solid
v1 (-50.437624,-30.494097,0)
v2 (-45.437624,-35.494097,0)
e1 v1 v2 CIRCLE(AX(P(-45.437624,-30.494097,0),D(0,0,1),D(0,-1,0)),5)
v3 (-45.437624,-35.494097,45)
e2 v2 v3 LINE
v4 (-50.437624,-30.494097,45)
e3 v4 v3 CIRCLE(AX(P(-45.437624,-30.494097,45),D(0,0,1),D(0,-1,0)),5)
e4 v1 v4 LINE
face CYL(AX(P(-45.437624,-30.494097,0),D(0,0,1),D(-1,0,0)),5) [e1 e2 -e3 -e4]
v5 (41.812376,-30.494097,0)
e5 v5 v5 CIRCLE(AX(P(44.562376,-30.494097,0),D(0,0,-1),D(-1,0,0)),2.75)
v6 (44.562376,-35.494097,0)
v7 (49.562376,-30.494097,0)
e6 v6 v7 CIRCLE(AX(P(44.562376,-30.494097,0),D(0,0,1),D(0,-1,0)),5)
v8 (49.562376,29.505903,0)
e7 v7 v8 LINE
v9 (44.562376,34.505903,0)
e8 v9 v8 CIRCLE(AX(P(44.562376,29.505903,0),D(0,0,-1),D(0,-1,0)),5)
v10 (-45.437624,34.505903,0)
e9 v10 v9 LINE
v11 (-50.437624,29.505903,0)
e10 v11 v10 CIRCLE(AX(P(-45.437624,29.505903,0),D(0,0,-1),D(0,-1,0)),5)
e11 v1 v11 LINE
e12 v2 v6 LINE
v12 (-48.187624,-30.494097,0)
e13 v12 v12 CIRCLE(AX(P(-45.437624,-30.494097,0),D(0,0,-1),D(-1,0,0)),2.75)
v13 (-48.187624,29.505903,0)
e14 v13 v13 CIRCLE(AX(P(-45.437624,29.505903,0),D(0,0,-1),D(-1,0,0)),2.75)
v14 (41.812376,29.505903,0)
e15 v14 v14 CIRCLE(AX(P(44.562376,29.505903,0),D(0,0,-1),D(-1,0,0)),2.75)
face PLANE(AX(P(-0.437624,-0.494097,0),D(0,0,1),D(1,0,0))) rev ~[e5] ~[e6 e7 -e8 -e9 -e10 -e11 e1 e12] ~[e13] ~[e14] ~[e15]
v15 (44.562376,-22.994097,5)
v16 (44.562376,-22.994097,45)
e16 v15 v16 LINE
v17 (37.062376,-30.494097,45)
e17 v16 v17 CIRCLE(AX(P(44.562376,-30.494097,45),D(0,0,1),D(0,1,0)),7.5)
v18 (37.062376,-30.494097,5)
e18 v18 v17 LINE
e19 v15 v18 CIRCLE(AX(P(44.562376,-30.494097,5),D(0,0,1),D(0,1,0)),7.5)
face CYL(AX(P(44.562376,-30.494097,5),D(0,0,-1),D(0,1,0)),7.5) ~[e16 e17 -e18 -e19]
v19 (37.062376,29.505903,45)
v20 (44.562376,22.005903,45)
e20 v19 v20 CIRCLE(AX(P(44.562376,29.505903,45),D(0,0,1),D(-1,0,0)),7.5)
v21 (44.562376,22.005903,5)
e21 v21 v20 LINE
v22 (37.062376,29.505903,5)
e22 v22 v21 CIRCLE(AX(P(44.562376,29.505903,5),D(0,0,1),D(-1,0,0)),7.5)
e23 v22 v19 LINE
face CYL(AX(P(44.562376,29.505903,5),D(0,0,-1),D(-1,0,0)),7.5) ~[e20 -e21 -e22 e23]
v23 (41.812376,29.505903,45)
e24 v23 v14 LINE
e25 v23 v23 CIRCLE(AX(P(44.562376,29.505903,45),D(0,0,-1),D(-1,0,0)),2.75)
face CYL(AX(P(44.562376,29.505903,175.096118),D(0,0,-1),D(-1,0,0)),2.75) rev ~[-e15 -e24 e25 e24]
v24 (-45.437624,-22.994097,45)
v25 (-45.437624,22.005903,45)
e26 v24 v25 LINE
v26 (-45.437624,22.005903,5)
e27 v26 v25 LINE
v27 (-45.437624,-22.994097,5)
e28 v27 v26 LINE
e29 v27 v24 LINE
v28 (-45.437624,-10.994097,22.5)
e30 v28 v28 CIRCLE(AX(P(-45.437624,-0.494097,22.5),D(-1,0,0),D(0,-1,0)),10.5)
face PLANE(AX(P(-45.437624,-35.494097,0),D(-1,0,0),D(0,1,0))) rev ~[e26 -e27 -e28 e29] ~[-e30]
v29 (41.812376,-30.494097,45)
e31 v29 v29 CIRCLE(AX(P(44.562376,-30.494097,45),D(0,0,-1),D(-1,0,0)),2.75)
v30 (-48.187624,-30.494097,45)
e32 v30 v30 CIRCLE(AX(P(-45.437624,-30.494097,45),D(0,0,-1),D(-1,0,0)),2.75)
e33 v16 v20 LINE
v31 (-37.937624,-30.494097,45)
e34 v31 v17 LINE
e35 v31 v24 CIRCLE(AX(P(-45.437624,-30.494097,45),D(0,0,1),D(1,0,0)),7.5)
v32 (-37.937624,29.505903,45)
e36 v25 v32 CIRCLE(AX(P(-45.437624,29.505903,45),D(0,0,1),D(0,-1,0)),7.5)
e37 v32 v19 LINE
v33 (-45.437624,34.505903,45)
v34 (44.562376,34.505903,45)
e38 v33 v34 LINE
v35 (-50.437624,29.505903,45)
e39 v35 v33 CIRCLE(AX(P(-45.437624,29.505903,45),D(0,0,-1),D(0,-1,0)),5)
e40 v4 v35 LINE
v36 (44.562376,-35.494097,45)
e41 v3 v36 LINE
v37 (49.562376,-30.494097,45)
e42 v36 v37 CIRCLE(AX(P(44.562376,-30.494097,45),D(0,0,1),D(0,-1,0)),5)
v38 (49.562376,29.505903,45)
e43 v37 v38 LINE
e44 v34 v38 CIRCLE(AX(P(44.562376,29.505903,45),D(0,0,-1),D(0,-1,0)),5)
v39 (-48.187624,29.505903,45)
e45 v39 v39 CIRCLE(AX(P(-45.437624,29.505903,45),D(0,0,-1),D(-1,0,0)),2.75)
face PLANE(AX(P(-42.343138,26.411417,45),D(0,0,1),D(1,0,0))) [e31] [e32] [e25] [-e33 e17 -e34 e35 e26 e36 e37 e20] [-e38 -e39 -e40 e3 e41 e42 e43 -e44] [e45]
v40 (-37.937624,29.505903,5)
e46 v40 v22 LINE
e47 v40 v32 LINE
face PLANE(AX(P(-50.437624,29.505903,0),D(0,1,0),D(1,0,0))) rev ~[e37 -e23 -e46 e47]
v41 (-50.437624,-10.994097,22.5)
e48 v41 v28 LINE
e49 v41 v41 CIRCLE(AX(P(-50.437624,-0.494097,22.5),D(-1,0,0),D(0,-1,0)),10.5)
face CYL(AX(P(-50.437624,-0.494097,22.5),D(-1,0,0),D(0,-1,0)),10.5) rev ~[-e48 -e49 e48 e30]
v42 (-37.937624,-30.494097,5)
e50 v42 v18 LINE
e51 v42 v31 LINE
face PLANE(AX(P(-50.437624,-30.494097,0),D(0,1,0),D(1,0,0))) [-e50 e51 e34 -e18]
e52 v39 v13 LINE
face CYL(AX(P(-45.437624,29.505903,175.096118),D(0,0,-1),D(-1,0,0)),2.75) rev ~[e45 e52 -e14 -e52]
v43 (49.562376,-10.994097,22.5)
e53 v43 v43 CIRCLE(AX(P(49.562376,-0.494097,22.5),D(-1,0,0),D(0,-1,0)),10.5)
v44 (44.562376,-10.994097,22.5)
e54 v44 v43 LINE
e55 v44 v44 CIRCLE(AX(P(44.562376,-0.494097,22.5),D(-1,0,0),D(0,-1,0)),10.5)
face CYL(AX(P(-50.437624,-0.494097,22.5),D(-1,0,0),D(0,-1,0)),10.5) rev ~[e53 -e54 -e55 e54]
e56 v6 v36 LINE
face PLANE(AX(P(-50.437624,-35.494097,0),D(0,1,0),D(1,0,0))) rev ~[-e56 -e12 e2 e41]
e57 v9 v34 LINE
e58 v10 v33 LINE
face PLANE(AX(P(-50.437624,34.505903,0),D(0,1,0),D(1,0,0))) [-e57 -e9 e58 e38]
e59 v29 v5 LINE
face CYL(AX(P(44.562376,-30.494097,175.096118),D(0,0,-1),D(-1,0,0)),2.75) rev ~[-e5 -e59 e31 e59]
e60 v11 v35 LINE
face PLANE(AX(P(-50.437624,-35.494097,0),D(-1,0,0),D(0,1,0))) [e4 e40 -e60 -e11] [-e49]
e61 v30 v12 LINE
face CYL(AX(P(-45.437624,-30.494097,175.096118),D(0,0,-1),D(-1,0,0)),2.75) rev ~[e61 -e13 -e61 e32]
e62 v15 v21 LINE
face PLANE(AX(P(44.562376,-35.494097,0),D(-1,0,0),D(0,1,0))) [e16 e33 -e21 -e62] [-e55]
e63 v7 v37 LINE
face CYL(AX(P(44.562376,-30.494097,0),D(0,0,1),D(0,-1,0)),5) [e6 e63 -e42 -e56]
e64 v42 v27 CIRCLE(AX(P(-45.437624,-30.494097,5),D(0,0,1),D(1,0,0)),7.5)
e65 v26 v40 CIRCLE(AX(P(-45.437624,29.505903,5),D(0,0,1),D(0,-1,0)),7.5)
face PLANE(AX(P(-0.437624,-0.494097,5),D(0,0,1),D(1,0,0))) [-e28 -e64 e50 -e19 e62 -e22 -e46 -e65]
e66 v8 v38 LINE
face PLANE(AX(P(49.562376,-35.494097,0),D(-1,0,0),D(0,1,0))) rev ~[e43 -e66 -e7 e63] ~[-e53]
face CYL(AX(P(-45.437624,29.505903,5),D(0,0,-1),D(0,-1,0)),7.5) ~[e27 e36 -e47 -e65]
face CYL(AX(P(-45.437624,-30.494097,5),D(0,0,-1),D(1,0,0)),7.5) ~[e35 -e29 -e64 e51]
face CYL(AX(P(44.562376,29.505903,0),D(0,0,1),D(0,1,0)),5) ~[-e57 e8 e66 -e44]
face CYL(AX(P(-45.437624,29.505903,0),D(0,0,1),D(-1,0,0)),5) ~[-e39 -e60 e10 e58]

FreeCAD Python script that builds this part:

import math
import FreeCAD as App
import Part
import Sketcher
Q = App.Units.Quantity


def edges_at(feature, points):
    """Names of the edges that pass closest to the given points."""
    edges = feature.Shape.Edges
    near = lambda p: min(range(len(edges)), key=lambda i: edges[i].distToShape(Part.Vertex(*p))[0])
    return sorted({f"Edge{near(p) + 1}" for p in points})


def faces_at(feature, points):
    """Names of the faces that lie closest to the given points."""
    faces = feature.Shape.Faces
    near = lambda p: min(range(len(faces)), key=lambda i: faces[i].distToShape(Part.Vertex(*p))[0])
    return sorted({f"Face{near(p) + 1}" for p in points})


def add_polygon(sketch, points):
    """Adds a closed chain of lines whose ends are joined by coincident constraints."""
    first, n = sketch.GeometryCount, len(points)
    for a, b in zip(points, points[1:] + points[:1]):
        sketch.addGeometry(Part.LineSegment(App.Vector(*a, 0), App.Vector(*b, 0)), False)
    for i in range(n):
        sketch.addConstraint(Sketcher.Constraint("Coincident", first + i, 2, first + (i + 1) % n, 1))

doc = App.newDocument("Part")
body = doc.addObject("PartDesign::Body", "Body")

# Sketch on XY plane
sketch1 = body.newObject("Sketcher::SketchObject", "Sketch")
sketch1.AttachmentSupport = (doc.getObject("XY_Plane"), [""])
sketch1.MapMode = "FlatFace"
add_polygon(sketch1, [(-50.437624, 34.505903), (-50.437624, -35.494097), (49.562376, -35.494097), (49.562376, 34.505903)])  # lines 0-3
sketch1.addConstraint([
    Sketcher.Constraint("Vertical", 0),
    Sketcher.Constraint("Horizontal", 1),
    Sketcher.Constraint("Vertical", 2),
    Sketcher.Constraint("Horizontal", 3),
    Sketcher.Constraint("DistanceX", 1, 1, 1, 2, Q("100 mm")),
    Sketcher.Constraint("DistanceY", 0, 2, 0, 1, Q("70 mm")),
    Sketcher.Constraint("DistanceX", 0, 2, -1, 1, Q("50.437624 mm")),
    Sketcher.Constraint("DistanceY", 0, 2, -1, 1, Q("35.494097 mm")),
])
pad1 = body.newObject("PartDesign::Pad", "Pad")
pad1.Profile = sketch1
pad1.Length = 45
doc.recompute()

thickness = body.newObject("PartDesign::Thickness", "Thickness")
thickness.Base = (pad1, faces_at(pad1, [(-0.438, -0.494, 45)]))
thickness.Value = 5
thickness.Reversed = True
thickness.Join = "Arc"

# Sketch on XY plane
sketch2 = body.newObject("Sketcher::SketchObject", "Sketch001")
sketch2.AttachmentSupport = (doc.getObject("XY_Plane"), [""])
sketch2.MapMode = "FlatFace"
sketch2.AttachmentOffset = App.Placement(App.Vector(0, 0, 5), App.Rotation())
sketch2.addGeometry([
    Part.ArcOfCircle(Part.Circle(App.Vector(-45.437624, 29.505903, 0), App.Vector(0, 0, 1), 7.5), math.radians(-90), math.radians(0)),  # 0
    Part.LineSegment(App.Vector(-37.937624, 29.505903, 0), App.Vector(-45.437624, 29.505903, 0)),  # 1
    Part.LineSegment(App.Vector(-45.437624, 29.505903, 0), App.Vector(-45.437624, 22.005903, 0)),  # 2
    Part.ArcOfCircle(Part.Circle(App.Vector(-45.437624, -30.494097, 0), App.Vector(0, 0, 1), 7.5), math.radians(0), math.radians(90)),  # 3
    Part.LineSegment(App.Vector(-45.437624, -22.994097, 0), App.Vector(-45.437624, -30.494097, 0)),  # 4
    Part.LineSegment(App.Vector(-45.437624, -30.494097, 0), App.Vector(-37.937624, -30.494097, 0)),  # 5
    Part.LineSegment(App.Vector(44.562376, 29.505903, 0), App.Vector(37.062376, 29.505903, 0)),  # 6
    Part.ArcOfCircle(Part.Circle(App.Vector(44.562376, 29.505903, 0), App.Vector(0, 0, 1), 7.5), math.radians(180), math.radians(270)),  # 7
    Part.LineSegment(App.Vector(44.562376, 22.005903, 0), App.Vector(44.562376, 29.505903, 0)),  # 8
    Part.LineSegment(App.Vector(44.562376, -30.494097, 0), App.Vector(44.562376, -22.994097, 0)),  # 9
    Part.ArcOfCircle(Part.Circle(App.Vector(44.562376, -30.494097, 0), App.Vector(0, 0, 1), 7.5), math.radians(90), math.radians(180)),  # 10
    Part.LineSegment(App.Vector(37.062376, -30.494097, 0), App.Vector(44.562376, -30.494097, 0)),  # 11
], False)
sketch2.addConstraint([
    Sketcher.Constraint("Coincident", 0, 2, 1, 1),
    Sketcher.Constraint("Coincident", 1, 2, 2, 1),
    Sketcher.Constraint("Coincident", 2, 2, 0, 1),
    Sketcher.Constraint("Coincident", 3, 2, 4, 1),
    Sketcher.Constraint("Coincident", 4, 2, 5, 1),
    Sketcher.Constraint("Coincident", 5, 2, 3, 1),
    Sketcher.Constraint("Coincident", 6, 2, 7, 1),
    Sketcher.Constraint("Coincident", 7, 2, 8, 1),
    Sketcher.Constraint("Coincident", 8, 2, 6, 1),
    Sketcher.Constraint("Coincident", 9, 2, 10, 1),
    Sketcher.Constraint("Coincident", 10, 2, 11, 1),
    Sketcher.Constraint("Coincident", 11, 2, 9, 1),
    Sketcher.Constraint("Horizontal", 1),
    Sketcher.Constraint("Vertical", 2),
    Sketcher.Constraint("Vertical", 4),
    Sketcher.Constraint("Horizontal", 5),
    Sketcher.Constraint("Horizontal", 6),
    Sketcher.Constraint("Vertical", 8),
    Sketcher.Constraint("Vertical", 9),
    Sketcher.Constraint("Horizontal", 11),
    Sketcher.Constraint("Coincident", 1, 2, 0, 3),
    Sketcher.Constraint("Coincident", 4, 2, 3, 3),
    Sketcher.Constraint("Coincident", 8, 2, 7, 3),
    Sketcher.Constraint("Coincident", 11, 2, 10, 3),
    Sketcher.Constraint("Equal", 0, 3),
    Sketcher.Constraint("Equal", 3, 7),
    Sketcher.Constraint("Equal", 7, 10),
    Sketcher.Constraint("Horizontal", 0, 3, 7, 3),
    Sketcher.Constraint("Horizontal", 3, 3, 10, 3),
    Sketcher.Constraint("Vertical", 0, 3, 3, 3),
    Sketcher.Constraint("Vertical", 7, 3, 10, 3),
    Sketcher.Constraint("Radius", 0, Q("7.5 mm")),
    Sketcher.Constraint("DistanceY", 3, 3, 0, 3, Q("60 mm")),
    Sketcher.Constraint("DistanceX", 0, 3, 7, 3, Q("90 mm")),
    Sketcher.Constraint("DistanceX", 0, 3, -1, 1, Q("45.437624 mm")),
    Sketcher.Constraint("DistanceY", -1, 1, 0, 3, Q("29.505903 mm")),
])
pad2 = body.newObject("PartDesign::Pad", "Pad001")
pad2.Profile = sketch2
pad2.Length = 40

# Sketch on XY plane
sketch3 = body.newObject("Sketcher::SketchObject", "Sketch002")
sketch3.AttachmentSupport = (doc.getObject("XY_Plane"), [""])
sketch3.MapMode = "FlatFace"
sketch3.AttachmentOffset = App.Placement(App.Vector(0, 0, 45), App.Rotation())
sketch3.addGeometry([
    Part.Circle(App.Vector(44.562376, 29.505903, 0), App.Vector(0, 0, 1), 2.75),
    Part.Circle(App.Vector(44.562376, -30.494097, 0), App.Vector(0, 0, 1), 2.75),
    Part.Circle(App.Vector(-45.437624, -30.494097, 0), App.Vector(0, 0, 1), 2.75),
    Part.Circle(App.Vector(-45.437624, 29.505903, 0), App.Vector(0, 0, 1), 2.75),
], False)
sketch3.addConstraint([
    Sketcher.Constraint("Equal", 0, 1),
    Sketcher.Constraint("Equal", 1, 2),
    Sketcher.Constraint("Equal", 2, 3),
    Sketcher.Constraint("Horizontal", 1, 3, 2, 3),
    Sketcher.Constraint("Horizontal", 0, 3, 3, 3),
    Sketcher.Constraint("Vertical", 0, 3, 1, 3),
    Sketcher.Constraint("Vertical", 2, 3, 3, 3),
    Sketcher.Constraint("Diameter", 0, Q("5.5 mm")),
    Sketcher.Constraint("DistanceY", 1, 3, 0, 3, Q("60 mm")),
    Sketcher.Constraint("DistanceX", 2, 3, 1, 3, Q("90 mm")),
    Sketcher.Constraint("DistanceX", -1, 1, 0, 3, Q("44.562376 mm")),
    Sketcher.Constraint("DistanceY", -1, 1, 0, 3, Q("29.505903 mm")),
])
doc.recompute()
hole = body.newObject("PartDesign::Hole", "Hole")
hole.Profile = sketch3
hole.ThreadType = "None"
hole.Diameter = 5.5
hole.DepthType = "ThroughAll"

# Sketch on YZ plane
sketch4 = body.newObject("Sketcher::SketchObject", "Sketch003")
sketch4.AttachmentSupport = (doc.getObject("YZ_Plane"), [""])
sketch4.MapMode = "FlatFace"
sketch4.AttachmentOffset = App.Placement(App.Vector(0, 0, -50.437624), App.Rotation())
sketch4.addGeometry(Part.Circle(App.Vector(-0.494097, 22.5, 0), App.Vector(0, 0, 1), 10.5), False)
sketch4.addConstraint([
    Sketcher.Constraint("Diameter", 0, Q("21 mm")),
    Sketcher.Constraint("DistanceY", -1, 1, 0, 3, Q("22.5 mm")),
    Sketcher.Constraint("DistanceX", 0, 3, -1, 1, Q("0.494097 mm")),
])
pocket1 = body.newObject("PartDesign::Pocket", "Pocket")
pocket1.Profile = sketch4
pocket1.Type = "ThroughAll"
pocket1.Reversed = True
doc.recompute()

fillet = body.newObject("PartDesign::Fillet", "Fillet")
fillet.Base = (pocket1, edges_at(pocket1, [
    (-50.438, 34.506, 22.5),
    (49.562, 34.506, 22.5),
    (-50.438, -35.494, 22.5),
    (49.562, -35.494, 22.5),
]))
fillet.Radius = 5

doc.recompute()
